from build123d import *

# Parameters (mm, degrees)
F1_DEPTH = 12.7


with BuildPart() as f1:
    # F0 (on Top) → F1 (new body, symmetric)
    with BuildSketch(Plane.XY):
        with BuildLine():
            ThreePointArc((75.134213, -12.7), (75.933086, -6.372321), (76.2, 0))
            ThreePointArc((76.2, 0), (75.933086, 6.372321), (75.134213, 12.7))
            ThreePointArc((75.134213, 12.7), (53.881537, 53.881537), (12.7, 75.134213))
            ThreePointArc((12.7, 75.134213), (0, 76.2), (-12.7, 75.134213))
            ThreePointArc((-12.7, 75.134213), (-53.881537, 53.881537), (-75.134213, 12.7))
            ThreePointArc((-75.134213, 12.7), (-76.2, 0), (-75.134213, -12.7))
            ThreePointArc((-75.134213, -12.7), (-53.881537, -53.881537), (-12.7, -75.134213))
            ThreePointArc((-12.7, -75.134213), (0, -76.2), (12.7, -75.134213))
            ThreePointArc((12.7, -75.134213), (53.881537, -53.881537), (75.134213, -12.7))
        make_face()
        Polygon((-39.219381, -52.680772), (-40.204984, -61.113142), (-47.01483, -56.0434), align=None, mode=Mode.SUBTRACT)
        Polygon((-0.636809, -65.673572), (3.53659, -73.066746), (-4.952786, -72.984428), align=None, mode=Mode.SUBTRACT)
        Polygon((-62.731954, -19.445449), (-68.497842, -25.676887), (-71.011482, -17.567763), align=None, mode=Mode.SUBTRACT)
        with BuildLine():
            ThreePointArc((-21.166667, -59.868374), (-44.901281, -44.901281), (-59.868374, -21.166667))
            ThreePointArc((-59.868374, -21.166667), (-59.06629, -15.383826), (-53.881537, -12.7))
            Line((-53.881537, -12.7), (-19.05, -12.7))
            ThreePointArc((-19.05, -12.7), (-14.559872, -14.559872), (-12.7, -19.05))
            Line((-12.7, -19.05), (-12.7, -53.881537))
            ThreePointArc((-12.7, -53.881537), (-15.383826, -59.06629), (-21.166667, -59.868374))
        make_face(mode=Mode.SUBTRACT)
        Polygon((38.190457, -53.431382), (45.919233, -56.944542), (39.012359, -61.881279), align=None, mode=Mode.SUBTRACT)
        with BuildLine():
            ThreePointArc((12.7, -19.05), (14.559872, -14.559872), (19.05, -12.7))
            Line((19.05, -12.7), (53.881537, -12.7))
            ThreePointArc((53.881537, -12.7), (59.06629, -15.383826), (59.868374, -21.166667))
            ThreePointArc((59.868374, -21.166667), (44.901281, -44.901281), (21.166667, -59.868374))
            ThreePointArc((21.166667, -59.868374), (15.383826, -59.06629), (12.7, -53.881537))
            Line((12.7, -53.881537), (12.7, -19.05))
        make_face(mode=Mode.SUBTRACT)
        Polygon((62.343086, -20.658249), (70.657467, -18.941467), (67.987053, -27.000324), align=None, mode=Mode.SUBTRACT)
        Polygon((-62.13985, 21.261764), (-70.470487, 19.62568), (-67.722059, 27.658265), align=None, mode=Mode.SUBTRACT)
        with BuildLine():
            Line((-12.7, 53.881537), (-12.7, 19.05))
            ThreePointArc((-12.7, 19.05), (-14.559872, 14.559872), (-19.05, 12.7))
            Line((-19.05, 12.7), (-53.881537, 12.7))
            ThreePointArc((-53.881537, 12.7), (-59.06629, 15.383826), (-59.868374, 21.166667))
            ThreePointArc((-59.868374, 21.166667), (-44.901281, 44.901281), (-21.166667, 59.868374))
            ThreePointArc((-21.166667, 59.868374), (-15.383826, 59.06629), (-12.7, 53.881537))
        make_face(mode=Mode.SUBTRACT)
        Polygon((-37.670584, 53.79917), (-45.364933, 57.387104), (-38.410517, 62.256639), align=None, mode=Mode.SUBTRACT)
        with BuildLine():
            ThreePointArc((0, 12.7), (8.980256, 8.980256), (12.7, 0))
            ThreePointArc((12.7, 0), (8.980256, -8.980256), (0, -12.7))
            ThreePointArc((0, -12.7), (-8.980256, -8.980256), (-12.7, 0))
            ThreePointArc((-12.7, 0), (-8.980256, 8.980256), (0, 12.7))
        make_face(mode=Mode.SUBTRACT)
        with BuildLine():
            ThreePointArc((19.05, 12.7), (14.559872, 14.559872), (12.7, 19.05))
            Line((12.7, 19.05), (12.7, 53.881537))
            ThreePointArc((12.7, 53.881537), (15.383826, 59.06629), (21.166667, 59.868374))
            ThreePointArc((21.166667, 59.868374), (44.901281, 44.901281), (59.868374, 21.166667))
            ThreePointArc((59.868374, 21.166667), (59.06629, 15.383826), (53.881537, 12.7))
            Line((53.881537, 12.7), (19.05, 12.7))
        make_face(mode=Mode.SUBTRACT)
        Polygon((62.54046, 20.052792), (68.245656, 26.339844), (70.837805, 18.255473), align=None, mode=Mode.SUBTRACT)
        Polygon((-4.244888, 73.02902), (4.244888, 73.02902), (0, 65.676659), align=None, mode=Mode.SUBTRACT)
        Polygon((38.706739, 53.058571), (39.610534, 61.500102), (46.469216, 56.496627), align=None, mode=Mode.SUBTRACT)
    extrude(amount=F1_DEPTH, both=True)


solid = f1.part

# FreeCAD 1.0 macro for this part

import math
import FreeCAD as App
import Part
import Sketcher

V = App.Vector
Q = App.Units.Quantity


def add_polygon(sketch, points):
    """Adds a closed chain of lines whose ends are joined by coincident constraints."""
    first, n = sketch.GeometryCount, len(points)
    for a, b in zip(points, points[1:] + points[:1]):
        sketch.addGeometry(Part.LineSegment(App.Vector(*a, 0), App.Vector(*b, 0)), False)
    for i in range(n):
        sketch.addConstraint(Sketcher.Constraint("Coincident", first + i, 2, first + (i + 1) % n, 1))

doc = App.newDocument("Part")
body = doc.addObject("PartDesign::Body", "Body")

# Sketch on XY plane
sketch1 = body.newObject("Sketcher::SketchObject", "Sketch")
sketch1.AttachmentSupport = (doc.getObject("XY_Plane"), [""])
sketch1.MapMode = "FlatFace"
sketch1.addGeometry(Part.ArcOfCircle(Part.Circle(V(0.00008, -0.000005, 0), V(0, 0, 1), 76.19992), math.radians(-9.594074), math.radians(0.000004)), False)  # 0
sketch1.addGeometry(Part.ArcOfCircle(Part.Circle(V(0.00008, 0.000005, 0), V(0, 0, 1), 76.19992), math.radians(-0.000004), math.radians(9.594074)), False)  # 1
sketch1.addGeometry(Part.ArcOfCircle(Part.Circle(V(0.000002, 0.000002, 0), V(0, 0, 1), 76.199997), math.radians(9.594067), math.radians(80.405933)), False)  # 2
sketch1.addGeometry(Part.ArcOfCircle(Part.Circle(V(0, 0.000017, 0), V(0, 0, 1), 76.199983), math.radians(80.40593), math.radians(99.59407)), False)  # 3
sketch1.addGeometry(Part.ArcOfCircle(Part.Circle(V(-0.000002, 0.000002, 0), V(0, 0, 1), 76.199997), math.radians(99.594067), math.radians(170.405933)), False)  # 4
sketch1.addGeometry(Part.ArcOfCircle(Part.Circle(V(-0.000017, 0, 0), V(0, 0, 1), 76.199983), math.radians(170.40593), math.radians(189.59407)), False)  # 5
sketch1.addGeometry(Part.ArcOfCircle(Part.Circle(V(-0.000002, -0.000002, 0), V(0, 0, 1), 76.199997), math.radians(-170.405933), math.radians(-99.594067)), False)  # 6
sketch1.addGeometry(Part.ArcOfCircle(Part.Circle(V(0, -0.000017, 0), V(0, 0, 1), 76.199983), math.radians(-99.59407), math.radians(-80.40593)), False)  # 7
sketch1.addGeometry(Part.ArcOfCircle(Part.Circle(V(0.000002, -0.000002, 0), V(0, 0, 1), 76.199997), math.radians(-80.405933), math.radians(-9.594067)), False)  # 8
add_polygon(sketch1, [(-47.01483, -56.0434), (-39.219381, -52.680772), (-40.204984, -61.113142)])  # lines 9-11
add_polygon(sketch1, [(-4.952786, -72.984428), (-0.636809, -65.673572), (3.53659, -73.066746)])  # lines 12-14
add_polygon(sketch1, [(-71.011482, -17.567763), (-62.731954, -19.445449), (-68.497842, -25.676887)])  # lines 15-17
sketch1.addGeometry(Part.ArcOfCircle(Part.Circle(V(-19.05, -53.881536, 0), V(0, 0, 1), 6.35), math.radians(-109.471222), math.radians(-0.000005)), False)  # 18
sketch1.addGeometry(Part.ArcOfCircle(Part.Circle(V(-0.000004, -0.000004, 0), V(0, 0, 1), 63.499995), math.radians(-160.528781), math.radians(-109.471219)), False)  # 19
sketch1.addGeometry(Part.ArcOfCircle(Part.Circle(V(-53.881536, -19.05, 0), V(0, 0, 1), 6.35), math.radians(90.000005), math.radians(199.471222)), False)  # 20
sketch1.addGeometry(Part.LineSegment(V(-53.881537, -12.7, 0), V(-19.05, -12.7, 0)), False)  # 21
sketch1.addGeometry(Part.ArcOfCircle(Part.Circle(V(-19.05, -19.05, 0), V(0, 0, 1), 6.35), math.radians(0.000002), math.radians(89.999998)), False)  # 22
sketch1.addGeometry(Part.LineSegment(V(-12.7, -19.05, 0), V(-12.7, -53.881537, 0)), False)  # 23
add_polygon(sketch1, [(39.012359, -61.881279), (38.190457, -53.431382), (45.919233, -56.944542)])  # lines 24-26
sketch1.addGeometry(Part.LineSegment(V(12.7, -53.881537, 0), V(12.7, -19.05, 0)), False)  # 27
sketch1.addGeometry(Part.ArcOfCircle(Part.Circle(V(19.05, -19.05, 0), V(0, 0, 1), 6.35), math.radians(90.000002), math.radians(179.999998)), False)  # 28
sketch1.addGeometry(Part.LineSegment(V(19.05, -12.7, 0), V(53.881537, -12.7, 0)), False)  # 29
sketch1.addGeometry(Part.ArcOfCircle(Part.Circle(V(53.881536, -19.05, 0), V(0, 0, 1), 6.35), math.radians(-19.471222), math.radians(89.999995)), False)  # 30
sketch1.addGeometry(Part.ArcOfCircle(Part.Circle(V(0.000004, -0.000004, 0), V(0, 0, 1), 63.499995), math.radians(-70.528781), math.radians(-19.471219)), False)  # 31
sketch1.addGeometry(Part.ArcOfCircle(Part.Circle(V(19.05, -53.881536, 0), V(0, 0, 1), 6.35), math.radians(-179.999995), math.radians(-70.528778)), False)  # 32
add_polygon(sketch1, [(67.987053, -27.000324), (62.343086, -20.658249), (70.657467, -18.941467)])  # lines 33-35
add_polygon(sketch1, [(-67.722059, 27.658265), (-62.13985, 21.261764), (-70.470487, 19.62568)])  # lines 36-38
sketch1.addGeometry(Part.ArcOfCircle(Part.Circle(V(-19.05, 53.881536, 0), V(0, 0, 1), 6.35), math.radians(0.000005), math.radians(109.471222)), False)  # 39
sketch1.addGeometry(Part.LineSegment(V(-12.7, 53.881537, 0), V(-12.7, 19.05, 0)), False)  # 40
sketch1.addGeometry(Part.ArcOfCircle(Part.Circle(V(-19.05, 19.05, 0), V(0, 0, 1), 6.35), math.radians(-89.999998), math.radians(-0.000002)), False)  # 41
sketch1.addGeometry(Part.LineSegment(V(-19.05, 12.7, 0), V(-53.881537, 12.7, 0)), False)  # 42
sketch1.addGeometry(Part.ArcOfCircle(Part.Circle(V(-53.881536, 19.05, 0), V(0, 0, 1), 6.35), math.radians(160.528778), math.radians(269.999995)), False)  # 43
sketch1.addGeometry(Part.ArcOfCircle(Part.Circle(V(-0.000004, 0.000004, 0), V(0, 0, 1), 63.499995), math.radians(109.471219), math.radians(160.528781)), False)  # 44
add_polygon(sketch1, [(-38.410517, 62.256639), (-37.670584, 53.79917), (-45.364933, 57.387104)])  # lines 45-47
sketch1.addGeometry(Part.ArcOfCircle(Part.Circle(V(0, 0, 0), V(0, 0, 1), 12.7), math.radians(90.000002), math.radians(179.999998)), False)  # 48
sketch1.addGeometry(Part.ArcOfCircle(Part.Circle(V(0, 0, 0), V(0, 0, 1), 12.7), math.radians(0.000002), math.radians(89.999998)), False)  # 49
sketch1.addGeometry(Part.ArcOfCircle(Part.Circle(V(0, 0, 0), V(0, 0, 1), 12.7), math.radians(-89.999998), math.radians(-0.000002)), False)  # 50
sketch1.addGeometry(Part.ArcOfCircle(Part.Circle(V(0, 0, 0), V(0, 0, 1), 12.7), math.radians(-179.999998), math.radians(-90.000002)), False)  # 51
sketch1.addGeometry(Part.LineSegment(V(53.881537, 12.7, 0), V(19.05, 12.7, 0)), False)  # 52
sketch1.addGeometry(Part.ArcOfCircle(Part.Circle(V(19.05, 19.05, 0), V(0, 0, 1), 6.35), math.radians(-179.999998), math.radians(-90.000002)), False)  # 53
sketch1.addGeometry(Part.LineSegment(V(12.7, 19.05, 0), V(12.7, 53.881537, 0)), False)  # 54
sketch1.addGeometry(Part.ArcOfCircle(Part.Circle(V(19.05, 53.881536, 0), V(0, 0, 1), 6.35), math.radians(70.528778), math.radians(179.999995)), False)  # 55
sketch1.addGeometry(Part.ArcOfCircle(Part.Circle(V(0.000004, 0.000004, 0), V(0, 0, 1), 63.499995), math.radians(19.471219), math.radians(70.528781)), False)  # 56
sketch1.addGeometry(Part.ArcOfCircle(Part.Circle(V(53.881536, 19.05, 0), V(0, 0, 1), 6.35), math.radians(-89.999995), math.radians(19.471222)), False)  # 57
add_polygon(sketch1, [(70.837805, 18.255473), (62.54046, 20.052792), (68.245656, 26.339844)])  # lines 58-60
add_polygon(sketch1, [(0, 65.676659), (-4.244888, 73.02902), (4.244888, 73.02902)])  # lines 61-63
add_polygon(sketch1, [(46.469216, 56.496627), (38.706739, 53.058571), (39.610534, 61.500102)])  # lines 64-66
sketch1.addConstraint([
    Sketcher.Constraint("Coincident", 0, 2, 1, 1),
    Sketcher.Constraint("Coincident", 1, 2, 2, 1),
    Sketcher.Constraint("Coincident", 2, 2, 3, 1),
    Sketcher.Constraint("Coincident", 3, 2, 4, 1),
    Sketcher.Constraint("Coincident", 4, 2, 5, 1),
    Sketcher.Constraint("Coincident", 5, 2, 6, 1),
    Sketcher.Constraint("Coincident", 6, 2, 7, 1),
    Sketcher.Constraint("Coincident", 7, 2, 8, 1),
    Sketcher.Constraint("Coincident", 8, 2, 0, 1),
    Sketcher.Constraint("Coincident", 18, 1, 19, 2),
    Sketcher.Constraint("Coincident", 19, 1, 20, 2),
    Sketcher.Constraint("Coincident", 20, 1, 21, 1),
    Sketcher.Constraint("Coincident", 21, 2, 22, 2),
    Sketcher.Constraint("Coincident", 22, 1, 23, 1),
    Sketcher.Constraint("Coincident", 23, 2, 18, 2),
    Sketcher.Constraint("Coincident", 27, 2, 28, 2),
    Sketcher.Constraint("Coincident", 28, 1, 29, 1),
    Sketcher.Constraint("Coincident", 29, 2, 30, 2),
    Sketcher.Constraint("Coincident", 30, 1, 31, 2),
    Sketcher.Constraint("Coincident", 31, 1, 32, 2),
    Sketcher.Constraint("Coincident", 32, 1, 27, 1),
    Sketcher.Constraint("Coincident", 39, 1, 40, 1),
    Sketcher.Constraint("Coincident", 40, 2, 41, 2),
    Sketcher.Constraint("Coincident", 41, 1, 42, 1),
    Sketcher.Constraint("Coincident", 42, 2, 43, 2),
    Sketcher.Constraint("Coincident", 43, 1, 44, 2),
    Sketcher.Constraint("Coincident", 44, 1, 39, 2),
    Sketcher.Constraint("Coincident", 48, 1, 49, 2),
    Sketcher.Constraint("Coincident", 49, 1, 50, 2),
    Sketcher.Constraint("Coincident", 50, 1, 51, 2),
    Sketcher.Constraint("Coincident", 51, 1, 48, 2),
    Sketcher.Constraint("Coincident", 52, 2, 53, 2),
    Sketcher.Constraint("Coincident", 53, 1, 54, 1),
    Sketcher.Constraint("Coincident", 54, 2, 55, 2),
    Sketcher.Constraint("Coincident", 55, 1, 56, 2),
    Sketcher.Constraint("Coincident", 56, 1, 57, 2),
    Sketcher.Constraint("Coincident", 57, 1, 52, 1),
    Sketcher.Constraint("Horizontal", 21),
    Sketcher.Constraint("Vertical", 23),
    Sketcher.Constraint("Vertical", 27),
    Sketcher.Constraint("Horizontal", 29),
    Sketcher.Constraint("Vertical", 40),
    Sketcher.Constraint("Horizontal", 42),
    Sketcher.Constraint("Horizontal", 52),
    Sketcher.Constraint("Vertical", 54),
    Sketcher.Constraint("Horizontal", 62),
    Sketcher.Constraint("Coincident", 2, 3, -1, 1),
    Sketcher.Constraint("Coincident", 4, 3, -1, 1),
    Sketcher.Constraint("Coincident", 6, 3, -1, 1),
    Sketcher.Constraint("Coincident", 8, 3, -1, 1),
    Sketcher.Constraint("Coincident", 19, 3, -1, 1),
    Sketcher.Constraint("Coincident", 31, 3, -1, 1),
    Sketcher.Constraint("Coincident", 44, 3, -1, 1),
    Sketcher.Constraint("Coincident", 48, 3, -1, 1),
    Sketcher.Constraint("Coincident", 49, 3, -1, 1),
    Sketcher.Constraint("Coincident", 50, 3, -1, 1),
    Sketcher.Constraint("Coincident", 56, 3, -1, 1),
    Sketcher.Constraint("PointOnObject", 3, 3, -2),
    Sketcher.Constraint("PointOnObject", 5, 3, -1),
    Sketcher.Constraint("PointOnObject", 7, 3, -2),
    Sketcher.Constraint("PointOnObject", 0, 2, -1),
    Sketcher.Constraint("PointOnObject", 48, 1, -2),
    Sketcher.Constraint("PointOnObject", 49, 1, -1),
    Sketcher.Constraint("PointOnObject", 50, 1, -2),
    Sketcher.Constraint("PointOnObject", 51, 1, -1),
    Sketcher.Constraint("PointOnObject", 63, 2, -2),
    Sketcher.Constraint("Radius", 2, Q("2.9999999 in")),
    Sketcher.Constraint("Radius", 48, Q("0.5 in")),
    Sketcher.Constraint("Radius", 51, Q("0.5 in")),
    Sketcher.Constraint("Radius", 18, Q("0.25 in")),
    Sketcher.Constraint("Radius", 20, Q("0.25 in")),
    Sketcher.Constraint("Radius", 22, Q("0.25 in")),
    Sketcher.Constraint("Radius", 28, Q("0.25 in")),
    Sketcher.Constraint("Radius", 30, Q("0.25 in")),
    Sketcher.Constraint("Radius", 32, Q("0.25 in")),
    Sketcher.Constraint("Radius", 39, Q("0.25 in")),
    Sketcher.Constraint("Radius", 41, Q("0.25 in")),
    Sketcher.Constraint("Radius", 43, Q("0.25 in")),
    Sketcher.Constraint("Radius", 53, Q("0.25 in")),
    Sketcher.Constraint("Radius", 55, Q("0.25 in")),
    Sketcher.Constraint("Radius", 57, Q("0.25 in")),
    Sketcher.Constraint("DistanceX", -1, 1, 0, 2, Q("3 in")),
    Sketcher.Constraint("DistanceY", -1, 1, 1, 2, Q("0.5 in")),
    Sketcher.Constraint("DistanceX", -1, 1, 2, 2, Q("0.5 in")),
    Sketcher.Constraint("DistanceX", 3, 2, -1, 1, Q("0.5 in")),
    Sketcher.Constraint("DistanceY", -1, 1, 4, 2, Q("0.5 in")),
    Sketcher.Constraint("DistanceY", 5, 2, -1, 1, Q("0.5 in")),
    Sketcher.Constraint("DistanceX", 6, 2, -1, 1, Q("0.5 in")),
    Sketcher.Constraint("DistanceX", -1, 1, 7, 2, Q("0.5 in")),
    Sketcher.Constraint("DistanceY", 8, 2, -1, 1, Q("0.5 in")),
    Sketcher.Constraint("DistanceY", 20, 1, -1, 1, Q("0.5 in")),
    Sketcher.Constraint("DistanceX", 22, 1, -1, 1, Q("0.5 in")),
    Sketcher.Constraint("DistanceX", -1, 1, 27, 2, Q("0.5 in")),
    Sketcher.Constraint("DistanceY", 28, 1, -1, 1, Q("0.5 in")),
    Sketcher.Constraint("DistanceX", 39, 1, -1, 1, Q("0.5 in")),
    Sketcher.Constraint("DistanceY", -1, 1, 41, 1, Q("0.5 in")),
    Sketcher.Constraint("DistanceY", -1, 1, 52, 2, Q("0.5 in")),
    Sketcher.Constraint("DistanceX", -1, 1, 53, 1, Q("0.5 in")),
    Sketcher.Constraint("DistanceX", 21, 2, -1, 1, Q("0.75 in")),
    Sketcher.Constraint("DistanceY", 22, 1, -1, 1, Q("0.75 in")),
    Sketcher.Constraint("DistanceY", 27, 2, -1, 1, Q("0.75 in")),
    Sketcher.Constraint("DistanceX", -1, 1, 28, 1, Q("0.75 in")),
    Sketcher.Constraint("DistanceY", -1, 1, 40, 2, Q("0.75 in")),
    Sketcher.Constraint("DistanceX", 41, 1, -1, 1, Q("0.75 in")),
    Sketcher.Constraint("DistanceX", -1, 1, 52, 2, Q("0.75 in")),
    Sketcher.Constraint("DistanceY", -1, 1, 53, 1, Q("0.75 in")),
    Sketcher.Constraint("Radius", 0, 76.19992),
    Sketcher.Constraint("Radius", 1, 76.19992),
    Sketcher.Constraint("Radius", 3, 76.199983),
    Sketcher.Constraint("Radius", 5, 76.199983),
    Sketcher.Constraint("Radius", 7, 76.199983),
    Sketcher.Constraint("Radius", 19, 63.499995),
    Sketcher.Constraint("Radius", 31, 63.499995),
    Sketcher.Constraint("Radius", 44, 63.499995),
    Sketcher.Constraint("Radius", 56, 63.499995),
    Sketcher.Constraint("DistanceY", 11, 2, -1, 1, 56.0434),
    Sketcher.Constraint("DistanceY", -1, 1, 65, 2, 61.500102),
    Sketcher.Constraint("DistanceX", 21, 1, 21, 2, 34.831537),
    Sketcher.Constraint("DistanceX", 29, 1, 29, 2, 34.831537),
    Sketcher.Constraint("DistanceX", 42, 2, 42, 1, 34.831537),
    Sketcher.Constraint("DistanceX", 52, 2, 52, 1, 34.831537),
    Sketcher.Constraint("DistanceX", 62, 1, 62, 2, 8.489776),
    Sketcher.Constraint("DistanceY", 23, 2, 23, 1, 34.831537),
    Sketcher.Constraint("DistanceY", 27, 1, 27, 2, 34.831537),
    Sketcher.Constraint("DistanceY", 40, 2, 40, 1, 34.831537),
    Sketcher.Constraint("DistanceY", 54, 1, 54, 2, 34.831537),
    Sketcher.Constraint("DistanceX", 9, 2, -1, 1, 39.219381),
    Sketcher.Constraint("DistanceY", 9, 2, -1, 1, 52.680772),
    Sketcher.Constraint("DistanceX", 11, 2, -1, 1, 47.01483),
    Sketcher.Constraint("DistanceX", 12, 2, -1, 1, 0.636809),
    Sketcher.Constraint("DistanceY", 12, 2, -1, 1, 65.673572),
    Sketcher.Constraint("DistanceX", -1, 1, 13, 2, 3.53659),
    Sketcher.Constraint("DistanceY", 15, 2, -1, 1, 19.445449),
    Sketcher.Constraint("DistanceX", 17, 2, -1, 1, 71.011482),
    Sketcher.Constraint("DistanceY", 25, 2, -1, 1, 56.944542),
    Sketcher.Constraint("DistanceX", -1, 1, 26, 2, 39.012359),
    Sketcher.Constraint("DistanceY", 26, 2, -1, 1, 61.881279),
    Sketcher.Constraint("DistanceY", 33, 2, -1, 1, 20.658249),
    Sketcher.Constraint("DistanceX", 36, 2, -1, 1, 62.13985),
    Sketcher.Constraint("DistanceY", -1, 1, 37, 2, 19.62568),
    Sketcher.Constraint("DistanceX", 38, 2, -1, 1, 67.722059),
    Sketcher.Constraint("DistanceY", -1, 1, 45, 2, 53.79917),
    Sketcher.Constraint("DistanceY", -1, 1, 47, 2, 62.256639),
    Sketcher.Constraint("DistanceX", -1, 1, 58, 2, 62.54046),
    Sketcher.Constraint("DistanceY", -1, 1, 58, 2, 20.052792),
    Sketcher.Constraint("DistanceX", 61, 2, -1, 1, 4.244888),
    Sketcher.Constraint("DistanceY", -1, 1, 61, 2, 73.02902),
    Sketcher.Constraint("DistanceY", -1, 1, 63, 2, 65.676659),
    Sketcher.Constraint("DistanceX", -1, 1, 64, 2, 38.706739),
    Sketcher.Constraint("DistanceY", -1, 1, 64, 2, 53.058571),
    Sketcher.Constraint("Distance", 10, 8.489775),
    Sketcher.Constraint("Distance", 11, 8.489775),
    Sketcher.Constraint("Distance", 12, 8.489775),
    Sketcher.Constraint("Distance", 13, 8.489775),
    Sketcher.Constraint("Distance", 14, 8.489775),
    Sketcher.Constraint("Distance", 15, 8.489776),
    Sketcher.Constraint("Distance", 16, 8.489775),
    Sketcher.Constraint("Distance", 17, 8.489775),
    Sketcher.Constraint("Distance", 24, 8.489775),
    Sketcher.Constraint("Distance", 25, 8.489775),
    Sketcher.Constraint("Distance", 26, 8.489775),
    Sketcher.Constraint("Distance", 33, 8.489775),
    Sketcher.Constraint("Distance", 34, 8.489775),
    Sketcher.Constraint("Distance", 35, 8.489775),
    Sketcher.Constraint("Distance", 36, 8.489775),
    Sketcher.Constraint("Distance", 37, 8.489775),
    Sketcher.Constraint("Distance", 38, 8.489775),
    Sketcher.Constraint("Distance", 45, 8.489775),
    Sketcher.Constraint("Distance", 46, 8.489775),
    Sketcher.Constraint("Distance", 47, 8.489775),
    Sketcher.Constraint("Distance", 58, 8.489776),
    Sketcher.Constraint("Distance", 59, 8.489775),
    Sketcher.Constraint("Distance", 60, 8.489776),
    Sketcher.Constraint("Distance", 64, 8.489775),
    Sketcher.Constraint("Distance", 65, 8.489776),
    Sketcher.Constraint("Distance", 66, 8.489775),
    Sketcher.Constraint("DistanceX", 15, 2, -1, 1, 62.731954),
    Sketcher.Constraint("DistanceX", 18, 1, -1, 1, 21.166667),
    Sketcher.Constraint("DistanceX", 19, 1, -1, 1, 59.868374),
    Sketcher.Constraint("DistanceX", -1, 1, 30, 1, 59.868374),
    Sketcher.Constraint("DistanceX", -1, 1, 31, 1, 21.166667),
    Sketcher.Constraint("DistanceX", -1, 1, 33, 2, 62.343086),
    Sketcher.Constraint("DistanceX", -1, 1, 34, 2, 70.657467),
    Sketcher.Constraint("DistanceX", 43, 1, -1, 1, 59.868374),
    Sketcher.Constraint("DistanceX", 44, 1, -1, 1, 21.166667),
    Sketcher.Constraint("DistanceX", 45, 2, -1, 1, 37.670584),
    Sketcher.Constraint("DistanceX", -1, 1, 55, 1, 21.166667),
    Sketcher.Constraint("DistanceX", -1, 1, 56, 1, 59.868374),
    Sketcher.Constraint("DistanceX", -1, 1, 59, 2, 68.245656),
])
pad1 = body.newObject("PartDesign::Pad", "Pad")
pad1.Profile = sketch1
pad1.Length = Q("1 in")
pad1.Midplane = True

doc.recompute()
